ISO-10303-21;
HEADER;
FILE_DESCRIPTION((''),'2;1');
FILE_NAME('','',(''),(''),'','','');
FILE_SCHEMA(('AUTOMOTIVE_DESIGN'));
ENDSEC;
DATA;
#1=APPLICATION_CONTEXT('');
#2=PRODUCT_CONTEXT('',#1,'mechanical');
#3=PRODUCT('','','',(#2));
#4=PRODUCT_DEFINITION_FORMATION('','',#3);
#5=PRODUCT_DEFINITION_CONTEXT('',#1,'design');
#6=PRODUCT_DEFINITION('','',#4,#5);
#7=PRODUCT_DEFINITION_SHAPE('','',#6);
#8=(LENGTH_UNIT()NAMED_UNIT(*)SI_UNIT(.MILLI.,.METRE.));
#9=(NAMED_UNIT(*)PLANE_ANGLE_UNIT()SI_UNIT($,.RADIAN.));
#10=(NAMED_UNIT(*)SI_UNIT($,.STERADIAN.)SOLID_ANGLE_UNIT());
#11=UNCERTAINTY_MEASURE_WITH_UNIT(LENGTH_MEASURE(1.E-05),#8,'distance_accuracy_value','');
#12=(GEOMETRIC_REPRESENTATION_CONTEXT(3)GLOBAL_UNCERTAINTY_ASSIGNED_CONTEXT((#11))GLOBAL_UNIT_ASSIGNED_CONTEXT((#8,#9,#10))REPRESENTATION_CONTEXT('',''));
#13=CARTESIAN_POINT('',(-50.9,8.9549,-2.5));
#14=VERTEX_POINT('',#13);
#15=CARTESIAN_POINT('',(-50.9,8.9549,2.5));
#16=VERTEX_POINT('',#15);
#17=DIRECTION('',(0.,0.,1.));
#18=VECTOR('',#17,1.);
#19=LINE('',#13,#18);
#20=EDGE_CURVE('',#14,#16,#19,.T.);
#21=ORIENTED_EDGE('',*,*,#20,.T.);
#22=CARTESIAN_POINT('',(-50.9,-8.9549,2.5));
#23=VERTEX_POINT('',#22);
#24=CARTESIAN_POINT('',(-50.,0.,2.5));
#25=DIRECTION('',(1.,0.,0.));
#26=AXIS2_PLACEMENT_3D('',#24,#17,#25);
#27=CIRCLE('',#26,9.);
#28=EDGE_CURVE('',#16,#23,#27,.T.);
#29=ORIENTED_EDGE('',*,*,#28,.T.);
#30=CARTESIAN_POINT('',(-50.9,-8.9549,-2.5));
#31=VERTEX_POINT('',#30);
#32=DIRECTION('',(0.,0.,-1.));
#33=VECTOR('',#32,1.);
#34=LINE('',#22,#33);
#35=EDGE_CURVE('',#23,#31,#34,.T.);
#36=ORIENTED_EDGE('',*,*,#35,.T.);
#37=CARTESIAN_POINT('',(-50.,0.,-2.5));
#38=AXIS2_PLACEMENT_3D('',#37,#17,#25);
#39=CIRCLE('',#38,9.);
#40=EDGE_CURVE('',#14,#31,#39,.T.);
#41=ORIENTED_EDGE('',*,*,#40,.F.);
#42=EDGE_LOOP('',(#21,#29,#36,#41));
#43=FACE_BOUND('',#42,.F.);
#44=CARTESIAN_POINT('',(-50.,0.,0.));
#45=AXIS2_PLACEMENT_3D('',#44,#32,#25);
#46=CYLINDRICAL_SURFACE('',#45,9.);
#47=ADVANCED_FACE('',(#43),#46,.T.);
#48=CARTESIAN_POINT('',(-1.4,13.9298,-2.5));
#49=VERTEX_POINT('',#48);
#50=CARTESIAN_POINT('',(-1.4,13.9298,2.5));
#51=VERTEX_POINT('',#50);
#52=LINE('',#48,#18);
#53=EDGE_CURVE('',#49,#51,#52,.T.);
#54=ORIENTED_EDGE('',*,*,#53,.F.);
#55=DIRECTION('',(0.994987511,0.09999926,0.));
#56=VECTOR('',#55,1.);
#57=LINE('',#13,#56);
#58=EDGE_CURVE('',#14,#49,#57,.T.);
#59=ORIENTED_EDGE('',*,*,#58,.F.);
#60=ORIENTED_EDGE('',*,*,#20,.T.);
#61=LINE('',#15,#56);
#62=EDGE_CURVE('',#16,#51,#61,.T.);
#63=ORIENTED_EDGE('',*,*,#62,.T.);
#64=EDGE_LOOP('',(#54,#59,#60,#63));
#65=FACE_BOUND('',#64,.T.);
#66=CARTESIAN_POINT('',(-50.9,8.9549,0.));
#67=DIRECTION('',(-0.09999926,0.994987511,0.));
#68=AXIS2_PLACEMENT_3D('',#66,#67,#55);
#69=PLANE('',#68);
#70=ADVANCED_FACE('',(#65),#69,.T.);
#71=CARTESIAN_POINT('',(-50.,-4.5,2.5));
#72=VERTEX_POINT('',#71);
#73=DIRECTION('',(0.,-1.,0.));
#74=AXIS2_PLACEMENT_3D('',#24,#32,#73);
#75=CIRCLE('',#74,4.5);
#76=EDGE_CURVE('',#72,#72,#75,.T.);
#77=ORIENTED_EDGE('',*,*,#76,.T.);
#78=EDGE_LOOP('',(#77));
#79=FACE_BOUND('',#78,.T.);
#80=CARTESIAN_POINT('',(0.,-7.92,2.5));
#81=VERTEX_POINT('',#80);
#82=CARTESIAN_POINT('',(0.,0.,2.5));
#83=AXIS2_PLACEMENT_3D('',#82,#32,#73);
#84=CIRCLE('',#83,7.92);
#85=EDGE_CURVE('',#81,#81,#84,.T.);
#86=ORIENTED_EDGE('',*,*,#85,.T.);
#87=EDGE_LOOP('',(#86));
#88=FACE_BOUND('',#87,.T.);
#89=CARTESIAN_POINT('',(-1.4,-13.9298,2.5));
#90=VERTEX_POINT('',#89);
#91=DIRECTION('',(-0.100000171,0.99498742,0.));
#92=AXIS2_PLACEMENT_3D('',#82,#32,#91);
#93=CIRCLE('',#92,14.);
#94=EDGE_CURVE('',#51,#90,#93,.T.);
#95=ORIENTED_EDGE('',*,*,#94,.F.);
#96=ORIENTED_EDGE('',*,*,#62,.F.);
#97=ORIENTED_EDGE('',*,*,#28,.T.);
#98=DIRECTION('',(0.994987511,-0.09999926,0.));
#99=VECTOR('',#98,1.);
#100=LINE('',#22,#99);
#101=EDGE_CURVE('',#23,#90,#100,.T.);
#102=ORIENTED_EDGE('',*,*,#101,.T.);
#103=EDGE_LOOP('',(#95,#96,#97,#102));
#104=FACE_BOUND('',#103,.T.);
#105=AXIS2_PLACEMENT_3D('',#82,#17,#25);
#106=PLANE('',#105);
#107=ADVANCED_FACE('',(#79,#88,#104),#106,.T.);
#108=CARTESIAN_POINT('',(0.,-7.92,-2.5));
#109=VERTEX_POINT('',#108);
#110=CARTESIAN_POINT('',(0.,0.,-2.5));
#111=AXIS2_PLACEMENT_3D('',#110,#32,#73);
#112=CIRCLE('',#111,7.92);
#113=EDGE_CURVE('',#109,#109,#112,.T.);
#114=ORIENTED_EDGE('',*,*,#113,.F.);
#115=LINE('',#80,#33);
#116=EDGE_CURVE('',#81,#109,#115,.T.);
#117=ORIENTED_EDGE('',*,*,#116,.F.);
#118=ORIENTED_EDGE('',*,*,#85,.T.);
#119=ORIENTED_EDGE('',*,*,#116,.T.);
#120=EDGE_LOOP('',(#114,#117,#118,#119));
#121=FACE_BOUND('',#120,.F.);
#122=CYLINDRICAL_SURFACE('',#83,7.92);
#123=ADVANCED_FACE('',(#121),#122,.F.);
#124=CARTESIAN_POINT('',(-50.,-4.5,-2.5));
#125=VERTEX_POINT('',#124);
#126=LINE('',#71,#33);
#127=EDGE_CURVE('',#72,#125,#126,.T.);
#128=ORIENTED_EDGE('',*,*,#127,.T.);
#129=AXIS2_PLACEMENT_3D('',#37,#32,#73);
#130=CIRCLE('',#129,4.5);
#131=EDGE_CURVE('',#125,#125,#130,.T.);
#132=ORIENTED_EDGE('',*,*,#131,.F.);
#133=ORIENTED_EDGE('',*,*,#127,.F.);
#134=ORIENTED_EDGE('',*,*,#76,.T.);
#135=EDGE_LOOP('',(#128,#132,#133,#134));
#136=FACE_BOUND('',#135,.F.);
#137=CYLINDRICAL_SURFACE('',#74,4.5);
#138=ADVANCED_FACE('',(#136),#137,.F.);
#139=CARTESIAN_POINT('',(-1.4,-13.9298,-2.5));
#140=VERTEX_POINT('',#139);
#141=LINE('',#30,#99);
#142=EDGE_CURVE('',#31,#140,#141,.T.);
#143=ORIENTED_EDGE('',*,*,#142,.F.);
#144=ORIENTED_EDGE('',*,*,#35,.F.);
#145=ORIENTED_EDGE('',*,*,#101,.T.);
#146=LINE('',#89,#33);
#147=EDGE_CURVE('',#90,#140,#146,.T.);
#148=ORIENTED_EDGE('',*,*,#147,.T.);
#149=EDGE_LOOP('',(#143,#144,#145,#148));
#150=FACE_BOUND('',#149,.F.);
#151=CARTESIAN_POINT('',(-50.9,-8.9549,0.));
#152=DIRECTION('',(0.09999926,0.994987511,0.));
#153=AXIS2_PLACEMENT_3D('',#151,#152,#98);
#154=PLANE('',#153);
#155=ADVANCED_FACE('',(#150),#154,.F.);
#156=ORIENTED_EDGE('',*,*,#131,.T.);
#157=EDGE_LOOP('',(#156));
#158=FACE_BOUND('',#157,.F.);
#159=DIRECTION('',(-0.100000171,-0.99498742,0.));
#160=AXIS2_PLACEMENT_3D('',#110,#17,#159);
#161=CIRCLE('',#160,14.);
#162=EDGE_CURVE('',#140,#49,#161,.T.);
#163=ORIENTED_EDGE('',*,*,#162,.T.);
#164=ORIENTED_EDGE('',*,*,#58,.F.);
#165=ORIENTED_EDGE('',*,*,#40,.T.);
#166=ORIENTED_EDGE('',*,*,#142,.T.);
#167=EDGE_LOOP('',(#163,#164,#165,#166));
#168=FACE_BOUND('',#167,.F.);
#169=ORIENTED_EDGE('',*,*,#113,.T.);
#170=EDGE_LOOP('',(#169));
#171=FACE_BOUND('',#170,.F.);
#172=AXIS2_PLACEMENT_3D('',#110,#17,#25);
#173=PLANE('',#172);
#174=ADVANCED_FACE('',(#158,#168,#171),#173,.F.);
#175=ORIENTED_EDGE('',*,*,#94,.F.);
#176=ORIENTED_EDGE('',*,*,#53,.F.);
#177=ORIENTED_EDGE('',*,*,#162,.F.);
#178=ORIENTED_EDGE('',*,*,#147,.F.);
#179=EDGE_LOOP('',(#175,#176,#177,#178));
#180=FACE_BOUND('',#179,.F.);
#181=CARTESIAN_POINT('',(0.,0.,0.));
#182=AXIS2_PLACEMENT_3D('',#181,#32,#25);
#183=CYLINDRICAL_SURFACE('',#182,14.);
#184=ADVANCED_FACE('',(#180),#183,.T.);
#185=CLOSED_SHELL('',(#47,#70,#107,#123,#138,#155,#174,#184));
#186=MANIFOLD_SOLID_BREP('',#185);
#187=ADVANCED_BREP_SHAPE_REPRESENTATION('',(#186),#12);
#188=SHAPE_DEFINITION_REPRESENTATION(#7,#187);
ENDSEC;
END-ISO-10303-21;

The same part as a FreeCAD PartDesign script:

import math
import FreeCAD as App
import Part
import Sketcher

doc = App.newDocument("Part")
body = doc.addObject("PartDesign::Body", "Body")

# Sketch on XY plane
sketch1 = body.newObject("Sketcher::SketchObject", "Sketch")
sketch1.AttachmentSupport = (doc.getObject("XY_Plane"), [""])
sketch1.MapMode = "FlatFace"
sketch1.addGeometry(Part.ArcOfCircle(Part.Circle(App.Vector(0, 0, 0), App.Vector(0, 0, 1), 14), math.radians(-96), math.radians(96)), False)
sketch1.addGeometry(Part.LineSegment(App.Vector(-1, 14, 0), App.Vector(-51, 9, 0)), False)
sketch1.addGeometry(Part.ArcOfCircle(Part.Circle(App.Vector(-50, 0, 0), App.Vector(0, 0, 1), 9), math.radians(96), math.radians(264)), False)
sketch1.addGeometry(Part.LineSegment(App.Vector(-51, -9, 0), App.Vector(-1, -14, 0)), False)
sketch1.addConstraint(Sketcher.Constraint("Tangent", 0, 2, 1, 1))
sketch1.addConstraint(Sketcher.Constraint("Tangent", 1, 2, 2, 1))
sketch1.addConstraint(Sketcher.Constraint("Tangent", 2, 2, 3, 1))
sketch1.addConstraint(Sketcher.Constraint("Tangent", 3, 2, 0, 1))
sketch1.addConstraint(Sketcher.Constraint("Coincident", 0, 3, -1, 1))
sketch1.addConstraint(Sketcher.Constraint("PointOnObject", 2, 3, -1))
sketch1.addConstraint(Sketcher.Constraint("Radius", 0, 14.0))
sketch1.addConstraint(Sketcher.Constraint("Radius", 2, 9.0))
sketch1.addConstraint(Sketcher.Constraint("DistanceX", 2, 3, -1, 1, 50.0))
pad1 = body.newObject("PartDesign::Pad", "Pad")
pad1.Profile = sketch1
pad1.Length = 5
pad1.Midplane = True

# Sketch on XY plane
sketch2 = body.newObject("Sketcher::SketchObject", "Sketch001")
sketch2.AttachmentSupport = (doc.getObject("XY_Plane"), [""])
sketch2.MapMode = "FlatFace"
sketch2.AttachmentOffset = App.Placement(App.Vector(0, 0, 2.5), App.Rotation())
sketch2.addGeometry(Part.Circle(App.Vector(0, 0, 0), App.Vector(0, 0, 1), 8), False)
sketch2.addConstraint(Sketcher.Constraint("Coincident", 0, 3, -1, 1))
sketch2.addConstraint(Sketcher.Constraint("Diameter", 0, 15.84))
doc.recompute()
hole = body.newObject("PartDesign::Hole", "Hole")
hole.Profile = sketch2
hole.ThreadType = "None"
hole.Diameter = 15.84
hole.DepthType = "ThroughAll"

# Sketch on XY plane
sketch3 = body.newObject("Sketcher::SketchObject", "Sketch002")
sketch3.AttachmentSupport = (doc.getObject("XY_Plane"), [""])
sketch3.MapMode = "FlatFace"
sketch3.AttachmentOffset = App.Placement(App.Vector(0, 0, 2.5), App.Rotation())
sketch3.addGeometry(Part.Circle(App.Vector(-50, 0, 0), App.Vector(0, 0, 1), 4.5), False)
sketch3.addConstraint(Sketcher.Constraint("PointOnObject", 0, 3, -1))
sketch3.addConstraint(Sketcher.Constraint("Diameter", 0, 9.0))
sketch3.addConstraint(Sketcher.Constraint("DistanceX", 0, 3, -1, 1, 50.0))
doc.recompute()
hole2 = body.newObject("PartDesign::Hole", "Hole001")
hole2.Profile = sketch3
hole2.ThreadType = "None"
hole2.Diameter = 9
hole2.DepthType = "ThroughAll"

doc.recompute()
